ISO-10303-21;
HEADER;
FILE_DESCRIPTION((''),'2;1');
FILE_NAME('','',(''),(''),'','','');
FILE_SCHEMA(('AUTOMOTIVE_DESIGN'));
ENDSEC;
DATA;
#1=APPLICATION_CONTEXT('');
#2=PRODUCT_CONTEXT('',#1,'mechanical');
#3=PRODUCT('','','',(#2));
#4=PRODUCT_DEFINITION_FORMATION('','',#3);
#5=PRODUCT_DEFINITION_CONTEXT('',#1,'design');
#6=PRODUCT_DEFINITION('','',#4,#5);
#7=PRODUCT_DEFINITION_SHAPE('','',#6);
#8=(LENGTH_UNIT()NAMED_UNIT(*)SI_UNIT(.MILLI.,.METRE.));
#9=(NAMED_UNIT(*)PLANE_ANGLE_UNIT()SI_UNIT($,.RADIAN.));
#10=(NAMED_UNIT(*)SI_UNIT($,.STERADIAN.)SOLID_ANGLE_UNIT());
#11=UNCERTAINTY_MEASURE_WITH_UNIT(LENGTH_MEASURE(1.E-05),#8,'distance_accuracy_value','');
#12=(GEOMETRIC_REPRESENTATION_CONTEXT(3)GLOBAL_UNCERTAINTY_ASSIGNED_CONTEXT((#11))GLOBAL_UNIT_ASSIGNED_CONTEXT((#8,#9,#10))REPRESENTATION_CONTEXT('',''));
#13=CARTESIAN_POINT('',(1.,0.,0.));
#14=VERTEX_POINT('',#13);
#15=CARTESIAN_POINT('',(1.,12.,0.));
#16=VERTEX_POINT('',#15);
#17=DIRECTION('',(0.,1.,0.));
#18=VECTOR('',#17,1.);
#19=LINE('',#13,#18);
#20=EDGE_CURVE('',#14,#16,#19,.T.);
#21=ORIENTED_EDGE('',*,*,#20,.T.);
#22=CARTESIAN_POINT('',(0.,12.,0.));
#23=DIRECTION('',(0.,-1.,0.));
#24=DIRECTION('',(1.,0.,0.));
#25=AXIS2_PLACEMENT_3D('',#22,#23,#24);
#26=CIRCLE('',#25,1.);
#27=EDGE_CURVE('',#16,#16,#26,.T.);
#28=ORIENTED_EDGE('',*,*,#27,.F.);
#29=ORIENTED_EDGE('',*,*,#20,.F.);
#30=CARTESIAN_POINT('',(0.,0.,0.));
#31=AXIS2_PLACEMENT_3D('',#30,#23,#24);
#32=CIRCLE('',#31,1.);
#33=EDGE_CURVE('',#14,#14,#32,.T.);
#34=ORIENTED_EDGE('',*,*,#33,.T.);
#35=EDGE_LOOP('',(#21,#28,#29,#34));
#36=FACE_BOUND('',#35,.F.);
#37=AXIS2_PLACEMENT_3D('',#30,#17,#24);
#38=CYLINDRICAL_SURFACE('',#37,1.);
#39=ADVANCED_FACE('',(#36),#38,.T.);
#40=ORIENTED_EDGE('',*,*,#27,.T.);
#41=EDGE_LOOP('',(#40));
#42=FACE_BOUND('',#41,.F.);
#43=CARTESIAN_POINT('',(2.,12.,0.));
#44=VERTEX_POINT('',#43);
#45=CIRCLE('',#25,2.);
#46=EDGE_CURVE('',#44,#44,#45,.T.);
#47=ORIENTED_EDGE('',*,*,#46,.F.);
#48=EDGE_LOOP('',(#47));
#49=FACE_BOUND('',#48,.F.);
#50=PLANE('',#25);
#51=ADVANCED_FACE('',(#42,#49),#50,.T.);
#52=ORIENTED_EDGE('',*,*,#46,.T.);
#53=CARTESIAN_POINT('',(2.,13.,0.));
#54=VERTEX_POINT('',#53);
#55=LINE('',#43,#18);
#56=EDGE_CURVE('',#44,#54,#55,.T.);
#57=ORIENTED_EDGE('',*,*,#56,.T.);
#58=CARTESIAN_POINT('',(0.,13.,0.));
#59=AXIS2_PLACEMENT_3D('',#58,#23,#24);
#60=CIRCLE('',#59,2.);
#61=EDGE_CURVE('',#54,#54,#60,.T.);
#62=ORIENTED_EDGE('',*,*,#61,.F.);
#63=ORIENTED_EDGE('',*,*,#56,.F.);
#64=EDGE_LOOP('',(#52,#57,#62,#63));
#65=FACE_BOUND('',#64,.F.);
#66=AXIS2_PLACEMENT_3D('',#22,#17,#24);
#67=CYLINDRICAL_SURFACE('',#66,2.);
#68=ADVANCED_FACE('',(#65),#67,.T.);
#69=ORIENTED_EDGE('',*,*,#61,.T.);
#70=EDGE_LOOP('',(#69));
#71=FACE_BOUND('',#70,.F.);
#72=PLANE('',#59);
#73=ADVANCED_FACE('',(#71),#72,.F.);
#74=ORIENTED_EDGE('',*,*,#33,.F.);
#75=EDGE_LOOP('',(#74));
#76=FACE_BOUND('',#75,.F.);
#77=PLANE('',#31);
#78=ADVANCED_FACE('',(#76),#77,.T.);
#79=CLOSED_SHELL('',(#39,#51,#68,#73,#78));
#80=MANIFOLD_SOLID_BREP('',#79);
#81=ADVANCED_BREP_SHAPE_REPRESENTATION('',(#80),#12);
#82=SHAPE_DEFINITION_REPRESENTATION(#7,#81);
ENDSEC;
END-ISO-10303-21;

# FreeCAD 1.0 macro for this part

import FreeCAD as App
import Part
import Sketcher

V = App.Vector

doc = App.newDocument("Part")
body = doc.addObject("PartDesign::Body", "Body")

# Sketch on XY plane
sketch1 = doc.addObject("Sketcher::SketchObject", "Sketch")
body.addObject(sketch1)
sketch1.AttachmentSupport = (doc.XY_Plane, [""])
sketch1.MapMode = "FlatFace"
sketch1.addGeometry([
    Part.LineSegment(V(0, 0, 0), V(1, 0, 0)),  # 0
    Part.LineSegment(V(1, 0, 0), V(1, 12, 0)),  # 1
    Part.LineSegment(V(1, 12, 0), V(2, 12, 0)),  # 2
    Part.LineSegment(V(2, 12, 0), V(2, 13, 0)),  # 3
    Part.LineSegment(V(2, 13, 0), V(0, 13, 0)),  # 4
    Part.LineSegment(V(0, 13, 0), V(0, 0, 0)),  # 5
], False)
sketch1.addConstraint([
    Sketcher.Constraint("Coincident", 0, 2, 1, 1),
    Sketcher.Constraint("Coincident", 1, 2, 2, 1),
    Sketcher.Constraint("Coincident", 2, 2, 3, 1),
    Sketcher.Constraint("Coincident", 3, 2, 4, 1),
    Sketcher.Constraint("Coincident", 4, 2, 5, 1),
    Sketcher.Constraint("Coincident", 5, 2, 0, 1),
    Sketcher.Constraint("Horizontal", 0),
    Sketcher.Constraint("Vertical", 1),
    Sketcher.Constraint("Horizontal", 2),
    Sketcher.Constraint("Vertical", 3),
    Sketcher.Constraint("Horizontal", 4),
    Sketcher.Constraint("Vertical", 5),
    Sketcher.Constraint("Coincident", 5, 2, -1, 1),
    Sketcher.Constraint("Equal", 0, 2),
    Sketcher.Constraint("Equal", 2, 3),
    Sketcher.Constraint("DistanceX", 0, 1, 0, 2, 1.0),
    Sketcher.Constraint("DistanceY", 1, 1, 1, 2, 12.0),
])
revolution = doc.addObject("PartDesign::Revolution", "Revolution")
body.addObject(revolution)
revolution.Profile = sketch1
revolution.ReferenceAxis = (sketch1, ["V_Axis"])
revolution.Angle = 360

doc.recompute()
